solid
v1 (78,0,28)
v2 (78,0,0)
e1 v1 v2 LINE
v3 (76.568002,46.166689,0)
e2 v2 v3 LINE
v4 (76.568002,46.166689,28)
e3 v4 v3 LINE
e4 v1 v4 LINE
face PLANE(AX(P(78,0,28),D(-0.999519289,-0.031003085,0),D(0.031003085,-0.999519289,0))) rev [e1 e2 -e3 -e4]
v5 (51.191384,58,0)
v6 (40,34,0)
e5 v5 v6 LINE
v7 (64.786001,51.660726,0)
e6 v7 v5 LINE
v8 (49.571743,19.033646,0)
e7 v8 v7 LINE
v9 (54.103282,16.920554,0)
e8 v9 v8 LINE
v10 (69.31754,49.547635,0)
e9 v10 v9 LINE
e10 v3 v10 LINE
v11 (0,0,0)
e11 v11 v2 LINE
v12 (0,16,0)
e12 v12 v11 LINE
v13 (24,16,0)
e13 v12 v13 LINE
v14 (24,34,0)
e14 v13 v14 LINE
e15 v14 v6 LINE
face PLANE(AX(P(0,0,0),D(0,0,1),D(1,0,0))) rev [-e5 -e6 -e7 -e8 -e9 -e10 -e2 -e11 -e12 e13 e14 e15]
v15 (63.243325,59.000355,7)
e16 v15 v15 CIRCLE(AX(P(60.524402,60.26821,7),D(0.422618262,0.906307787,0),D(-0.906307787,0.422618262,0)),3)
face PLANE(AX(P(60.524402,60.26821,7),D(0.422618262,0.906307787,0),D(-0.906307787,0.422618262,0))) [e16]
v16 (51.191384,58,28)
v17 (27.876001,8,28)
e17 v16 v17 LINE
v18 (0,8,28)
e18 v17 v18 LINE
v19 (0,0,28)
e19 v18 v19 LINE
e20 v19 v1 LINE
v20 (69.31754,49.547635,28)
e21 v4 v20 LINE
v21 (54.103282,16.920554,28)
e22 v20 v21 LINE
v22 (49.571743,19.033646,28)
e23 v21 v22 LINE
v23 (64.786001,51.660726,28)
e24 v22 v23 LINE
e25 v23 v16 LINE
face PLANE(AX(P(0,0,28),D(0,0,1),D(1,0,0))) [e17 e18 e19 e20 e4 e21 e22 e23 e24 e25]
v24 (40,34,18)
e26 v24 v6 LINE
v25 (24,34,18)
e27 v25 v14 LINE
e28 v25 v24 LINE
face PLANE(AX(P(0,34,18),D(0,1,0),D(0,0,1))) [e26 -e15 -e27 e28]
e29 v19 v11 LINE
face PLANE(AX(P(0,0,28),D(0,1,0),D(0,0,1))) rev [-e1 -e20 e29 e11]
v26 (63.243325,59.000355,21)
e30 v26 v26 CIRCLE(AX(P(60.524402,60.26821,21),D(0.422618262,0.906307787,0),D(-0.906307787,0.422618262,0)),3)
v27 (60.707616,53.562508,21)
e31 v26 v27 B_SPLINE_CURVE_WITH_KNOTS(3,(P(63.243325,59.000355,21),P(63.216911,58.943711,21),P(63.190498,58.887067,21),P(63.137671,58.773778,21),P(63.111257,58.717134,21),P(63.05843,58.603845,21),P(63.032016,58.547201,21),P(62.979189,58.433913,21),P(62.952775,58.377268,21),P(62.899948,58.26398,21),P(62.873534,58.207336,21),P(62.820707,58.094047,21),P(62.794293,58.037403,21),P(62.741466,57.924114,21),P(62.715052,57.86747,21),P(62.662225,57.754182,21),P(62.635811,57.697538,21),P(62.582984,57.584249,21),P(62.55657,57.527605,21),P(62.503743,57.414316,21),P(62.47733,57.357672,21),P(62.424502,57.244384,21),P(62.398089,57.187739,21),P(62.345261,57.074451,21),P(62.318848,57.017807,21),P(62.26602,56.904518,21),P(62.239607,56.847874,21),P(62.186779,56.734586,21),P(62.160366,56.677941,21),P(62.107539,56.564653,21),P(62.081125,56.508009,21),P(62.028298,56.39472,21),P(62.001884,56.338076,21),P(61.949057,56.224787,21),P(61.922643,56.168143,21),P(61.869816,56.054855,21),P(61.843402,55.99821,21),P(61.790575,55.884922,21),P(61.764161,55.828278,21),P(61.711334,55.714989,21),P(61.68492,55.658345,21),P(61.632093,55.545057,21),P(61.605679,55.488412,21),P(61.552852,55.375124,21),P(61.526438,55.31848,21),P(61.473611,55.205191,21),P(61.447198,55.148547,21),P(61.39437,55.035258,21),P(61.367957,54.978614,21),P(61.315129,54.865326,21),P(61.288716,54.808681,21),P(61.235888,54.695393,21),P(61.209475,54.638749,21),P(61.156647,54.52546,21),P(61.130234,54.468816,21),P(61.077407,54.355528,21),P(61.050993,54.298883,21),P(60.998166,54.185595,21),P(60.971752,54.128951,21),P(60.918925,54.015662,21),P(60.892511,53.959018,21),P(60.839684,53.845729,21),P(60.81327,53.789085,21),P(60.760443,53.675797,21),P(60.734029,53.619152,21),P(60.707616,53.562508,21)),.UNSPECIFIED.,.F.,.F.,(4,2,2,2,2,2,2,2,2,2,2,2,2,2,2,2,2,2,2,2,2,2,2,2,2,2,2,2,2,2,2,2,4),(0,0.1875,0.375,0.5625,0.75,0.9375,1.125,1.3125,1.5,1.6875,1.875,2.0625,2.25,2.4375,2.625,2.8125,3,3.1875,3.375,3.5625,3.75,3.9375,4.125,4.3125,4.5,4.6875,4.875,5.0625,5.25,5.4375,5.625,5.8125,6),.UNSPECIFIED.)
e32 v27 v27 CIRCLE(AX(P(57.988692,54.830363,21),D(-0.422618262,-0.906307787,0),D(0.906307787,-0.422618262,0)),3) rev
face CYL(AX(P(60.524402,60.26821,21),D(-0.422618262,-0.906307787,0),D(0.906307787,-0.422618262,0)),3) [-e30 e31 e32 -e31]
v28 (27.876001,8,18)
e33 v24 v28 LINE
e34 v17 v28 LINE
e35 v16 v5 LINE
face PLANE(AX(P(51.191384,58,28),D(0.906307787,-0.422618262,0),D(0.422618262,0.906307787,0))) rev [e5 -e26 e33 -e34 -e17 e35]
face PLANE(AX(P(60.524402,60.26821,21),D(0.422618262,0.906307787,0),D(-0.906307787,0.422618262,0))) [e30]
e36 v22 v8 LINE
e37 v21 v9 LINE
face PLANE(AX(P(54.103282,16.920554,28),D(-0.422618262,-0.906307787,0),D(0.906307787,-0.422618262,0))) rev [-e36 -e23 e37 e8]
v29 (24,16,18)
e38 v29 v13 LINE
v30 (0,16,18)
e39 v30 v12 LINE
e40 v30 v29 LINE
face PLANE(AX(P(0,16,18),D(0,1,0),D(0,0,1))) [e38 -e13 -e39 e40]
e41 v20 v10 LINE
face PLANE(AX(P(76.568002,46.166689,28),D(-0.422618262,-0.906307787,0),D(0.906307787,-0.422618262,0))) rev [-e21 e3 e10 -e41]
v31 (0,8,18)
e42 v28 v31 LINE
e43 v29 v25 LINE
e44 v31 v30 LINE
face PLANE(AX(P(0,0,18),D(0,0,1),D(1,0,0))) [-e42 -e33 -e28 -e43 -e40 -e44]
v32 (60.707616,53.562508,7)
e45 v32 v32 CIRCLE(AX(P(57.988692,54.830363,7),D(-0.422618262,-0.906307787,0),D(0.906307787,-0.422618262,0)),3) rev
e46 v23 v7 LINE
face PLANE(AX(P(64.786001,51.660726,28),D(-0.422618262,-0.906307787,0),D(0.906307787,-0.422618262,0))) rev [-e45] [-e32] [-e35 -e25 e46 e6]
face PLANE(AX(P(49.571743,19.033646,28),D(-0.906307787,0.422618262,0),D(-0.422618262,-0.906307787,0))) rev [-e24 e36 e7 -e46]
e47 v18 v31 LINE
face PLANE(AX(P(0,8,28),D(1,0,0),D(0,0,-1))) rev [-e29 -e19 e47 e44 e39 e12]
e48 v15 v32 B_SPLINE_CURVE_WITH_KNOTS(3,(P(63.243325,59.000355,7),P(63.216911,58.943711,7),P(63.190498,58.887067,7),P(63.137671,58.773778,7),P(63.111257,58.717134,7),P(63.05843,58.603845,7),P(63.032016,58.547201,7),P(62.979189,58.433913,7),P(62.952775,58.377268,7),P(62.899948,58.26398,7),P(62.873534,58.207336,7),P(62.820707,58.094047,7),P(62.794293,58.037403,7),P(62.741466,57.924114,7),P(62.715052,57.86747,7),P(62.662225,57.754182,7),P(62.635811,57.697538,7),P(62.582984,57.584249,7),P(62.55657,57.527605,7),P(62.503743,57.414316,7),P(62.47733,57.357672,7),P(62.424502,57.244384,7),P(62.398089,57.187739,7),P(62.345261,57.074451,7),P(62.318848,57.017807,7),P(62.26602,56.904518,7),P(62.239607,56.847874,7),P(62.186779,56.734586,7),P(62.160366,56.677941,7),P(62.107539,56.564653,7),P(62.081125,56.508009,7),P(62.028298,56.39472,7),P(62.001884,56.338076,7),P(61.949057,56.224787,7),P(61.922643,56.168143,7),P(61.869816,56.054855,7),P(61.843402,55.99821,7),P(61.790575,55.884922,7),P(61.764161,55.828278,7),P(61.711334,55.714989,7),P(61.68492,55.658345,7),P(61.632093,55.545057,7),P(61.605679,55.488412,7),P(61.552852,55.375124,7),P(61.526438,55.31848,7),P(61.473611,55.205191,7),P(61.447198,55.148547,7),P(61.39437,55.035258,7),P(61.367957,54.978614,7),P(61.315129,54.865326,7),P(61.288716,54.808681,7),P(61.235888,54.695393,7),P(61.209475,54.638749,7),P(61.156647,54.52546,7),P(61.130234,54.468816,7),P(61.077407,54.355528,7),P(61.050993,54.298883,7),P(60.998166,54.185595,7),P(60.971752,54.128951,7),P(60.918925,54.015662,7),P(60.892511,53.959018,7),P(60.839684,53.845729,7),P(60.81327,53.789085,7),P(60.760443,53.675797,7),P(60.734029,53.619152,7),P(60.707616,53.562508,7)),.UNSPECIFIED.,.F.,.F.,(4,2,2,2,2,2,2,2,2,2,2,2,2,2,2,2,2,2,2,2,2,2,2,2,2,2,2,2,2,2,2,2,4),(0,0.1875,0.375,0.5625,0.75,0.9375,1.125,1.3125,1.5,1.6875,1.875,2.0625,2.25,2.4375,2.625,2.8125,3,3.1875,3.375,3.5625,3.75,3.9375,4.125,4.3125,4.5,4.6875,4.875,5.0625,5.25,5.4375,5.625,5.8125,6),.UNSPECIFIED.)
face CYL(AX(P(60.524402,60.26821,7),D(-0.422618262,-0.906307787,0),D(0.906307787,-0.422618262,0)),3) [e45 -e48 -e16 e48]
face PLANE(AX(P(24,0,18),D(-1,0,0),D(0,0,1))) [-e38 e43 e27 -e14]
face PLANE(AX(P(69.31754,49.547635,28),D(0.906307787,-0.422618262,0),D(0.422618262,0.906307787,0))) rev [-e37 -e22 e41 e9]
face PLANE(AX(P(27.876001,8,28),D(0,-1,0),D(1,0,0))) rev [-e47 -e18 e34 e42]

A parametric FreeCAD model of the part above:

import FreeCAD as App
import Part
import Sketcher

V = App.Vector
Q = App.Units.Quantity

doc = App.newDocument("Part")
params = doc.addObject("Spreadsheet::Sheet", "Params")
for row, (alias, value) in enumerate([
    ("sketch1_width", "78 mm"),
    ("sketch1_height", "8 mm"),
    ("sketch1_length", "8 mm"),
    ("sketch1_length2", "36 mm"),
    ("sketch1_length3", "5 mm"),
    ("pad1_length", "28 mm"),
    ("sketch2_width", "16 mm"),
    ("sketch2_width2", "24 mm"),
    ("sketch2_height", "8 mm"),
    ("sketch2_height2", "18 mm"),
    ("pad2_length", "18 mm"),
    ("sketch3_diameter", "6 mm"),
    ("pad3_length", "6 mm"),
], start=1):
    params.set(f"A{row}", alias)
    params.set(f"B{row}", "=" + value)
    params.setAlias(f"B{row}", alias)

body = doc.addObject("PartDesign::Body", "Body")

# Sketch on XY plane
sketch1 = body.newObject("Sketcher::SketchObject", "Sketch")
sketch1.AttachmentSupport = (doc.getObject("XY_Plane"), [""])
sketch1.MapMode = "FlatFace"
sketch1.addGeometry([
    Part.LineSegment(V(0, 0, 0), V(78, 0, 0)),  # 0
    Part.LineSegment(V(78, 0, 0), V(76.6, 46.2, 0)),  # 1
    Part.LineSegment(V(76.6, 46.2, 0), V(69.3, 49.5, 0)),  # 2
    Part.LineSegment(V(69.3, 49.5, 0), V(54.1, 16.9, 0)),  # 3
    Part.LineSegment(V(54.1, 16.9, 0), V(49.6, 19, 0)),  # 4
    Part.LineSegment(V(49.6, 19, 0), V(64.8, 51.7, 0)),  # 5
    Part.LineSegment(V(64.8, 51.7, 0), V(51.2, 58, 0)),  # 6
    Part.LineSegment(V(51.2, 58, 0), V(27.9, 8, 0)),  # 7
    Part.LineSegment(V(27.9, 8, 0), V(0, 8, 0)),  # 8
    Part.LineSegment(V(0, 8, 0), V(0, 0, 0)),  # 9
], False)
sketch1.addConstraint([
    Sketcher.Constraint("Coincident", 0, 2, 1, 1),
    Sketcher.Constraint("Coincident", 1, 2, 2, 1),
    Sketcher.Constraint("Coincident", 2, 2, 3, 1),
    Sketcher.Constraint("Coincident", 3, 2, 4, 1),
    Sketcher.Constraint("Coincident", 4, 2, 5, 1),
    Sketcher.Constraint("Coincident", 5, 2, 6, 1),
    Sketcher.Constraint("Coincident", 6, 2, 7, 1),
    Sketcher.Constraint("Coincident", 7, 2, 8, 1),
    Sketcher.Constraint("Coincident", 8, 2, 9, 1),
    Sketcher.Constraint("Coincident", 9, 2, 0, 1),
    Sketcher.Constraint("Horizontal", 0),
    Sketcher.Constraint("Horizontal", 8),
    Sketcher.Constraint("Vertical", 9),
    Sketcher.Constraint("Coincident", 9, 2, -1, 1),
    Sketcher.Constraint("Perpendicular", 2, 3),
    Sketcher.Constraint("Perpendicular", 3, 4),
    Sketcher.Constraint("Perpendicular", 4, 5),
    Sketcher.Constraint("Perpendicular", 5, 6),
    Sketcher.Constraint("Perpendicular", 6, 7),
    Sketcher.Constraint("Equal", 3, 5),
    Sketcher.Constraint("DistanceX", 0, 1, 0, 2, 78.0),
    Sketcher.Constraint("DistanceY", 9, 2, 9, 1, 8.0),
    Sketcher.Constraint("Angle", 2, Q("155 deg")),
    Sketcher.Constraint("Distance", 2, 8.0),
    Sketcher.Constraint("Distance", 3, 36.0),
    Sketcher.Constraint("Distance", 4, 5.0),
    Sketcher.Constraint("Distance", 6, 15.0),
    Sketcher.Constraint("DistanceY", -1, 1, 6, 2, 58.0),
    Sketcher.Constraint("DistanceX", 8, 2, 8, 1, 27.876001),
])
sketch1.setExpression("Constraints[20]", "Params.sketch1_width")
sketch1.setExpression("Constraints[21]", "Params.sketch1_height")
sketch1.setExpression("Constraints[23]", "Params.sketch1_length")
sketch1.setExpression("Constraints[24]", "Params.sketch1_length2")
sketch1.setExpression("Constraints[25]", "Params.sketch1_length3")
pad1 = body.newObject("PartDesign::Pad", "Pad")
pad1.Profile = sketch1
pad1.setExpression("Length", "Params.pad1_length")

# Sketch on XY plane
sketch2 = body.newObject("Sketcher::SketchObject", "Sketch001")
sketch2.AttachmentSupport = (doc.getObject("XY_Plane"), [""])
sketch2.MapMode = "FlatFace"
sketch2.addGeometry([
    Part.LineSegment(V(0, 16, 0), V(0, 8, 0)),  # 0
    Part.LineSegment(V(0, 8, 0), V(28, 8, 0)),  # 1
    Part.LineSegment(V(28, 8, 0), V(40, 34, 0)),  # 2
    Part.LineSegment(V(40, 34, 0), V(24, 34, 0)),  # 3
    Part.LineSegment(V(24, 34, 0), V(24, 16, 0)),  # 4
    Part.LineSegment(V(24, 16, 0), V(0, 16, 0)),  # 5
], False)
sketch2.addConstraint([
    Sketcher.Constraint("Coincident", 0, 2, 1, 1),
    Sketcher.Constraint("Coincident", 1, 2, 2, 1),
    Sketcher.Constraint("Coincident", 2, 2, 3, 1),
    Sketcher.Constraint("Coincident", 3, 2, 4, 1),
    Sketcher.Constraint("Coincident", 4, 2, 5, 1),
    Sketcher.Constraint("Coincident", 5, 2, 0, 1),
    Sketcher.Constraint("Vertical", 0),
    Sketcher.Constraint("Horizontal", 1),
    Sketcher.Constraint("Horizontal", 3),
    Sketcher.Constraint("Vertical", 4),
    Sketcher.Constraint("Horizontal", 5),
    Sketcher.Constraint("PointOnObject", 0, 2, -2),
    Sketcher.Constraint("DistanceX", 3, 2, 3, 1, 16.0),
    Sketcher.Constraint("DistanceX", 5, 2, 5, 1, 24.0),
    Sketcher.Constraint("DistanceY", 0, 2, 0, 1, 8.0),
    Sketcher.Constraint("DistanceY", 4, 2, 4, 1, 18.0),
    Sketcher.Constraint("Angle", 2, Q("65 deg")),
    Sketcher.Constraint("DistanceY", -1, 1, 0, 2, 8.0),
])
sketch2.setExpression("Constraints[12]", "Params.sketch2_width")
sketch2.setExpression("Constraints[13]", "Params.sketch2_width2")
sketch2.setExpression("Constraints[14]", "Params.sketch2_height")
sketch2.setExpression("Constraints[15]", "Params.sketch2_height2")
pad2 = body.newObject("PartDesign::Pad", "Pad001")
pad2.Profile = sketch2
pad2.setExpression("Length", "Params.pad2_length")

# Sketch on an angled plane
sketch3 = body.newObject("Sketcher::SketchObject", "Sketch002")
sketch3.Placement = App.Placement(V(31.358387, 67.248278, 0), App.Rotation(V(0.906307787, -0.422618262, 0), V(0, 0, -1), V(0.422618262, 0.906307787, 0), "ZXY"))
sketch3.addGeometry([
    Part.Circle(V(29.4, -7, 0), V(0, 0, 1), 3),
    Part.Circle(V(29.4, -21, 0), V(0, 0, 1), 3),
], False)
sketch3.addConstraint([
    Sketcher.Constraint("Equal", 0, 1),
    Sketcher.Constraint("Vertical", 0, 3, 1, 3),
    Sketcher.Constraint("Diameter", 0, 6.0),
    Sketcher.Constraint("DistanceY", 0, 3, -1, 1, 7.0),
    Sketcher.Constraint("DistanceY", 1, 3, -1, 1, 21.0),
    Sketcher.Constraint("DistanceX", -1, 1, 0, 3, 29.383291),
])
sketch3.setExpression("Constraints[2]", "Params.sketch3_diameter")
pad3 = body.newObject("PartDesign::Pad", "Pad002")
pad3.Profile = sketch3
pad3.setExpression("Length", "Params.pad3_length")

doc.recompute()
